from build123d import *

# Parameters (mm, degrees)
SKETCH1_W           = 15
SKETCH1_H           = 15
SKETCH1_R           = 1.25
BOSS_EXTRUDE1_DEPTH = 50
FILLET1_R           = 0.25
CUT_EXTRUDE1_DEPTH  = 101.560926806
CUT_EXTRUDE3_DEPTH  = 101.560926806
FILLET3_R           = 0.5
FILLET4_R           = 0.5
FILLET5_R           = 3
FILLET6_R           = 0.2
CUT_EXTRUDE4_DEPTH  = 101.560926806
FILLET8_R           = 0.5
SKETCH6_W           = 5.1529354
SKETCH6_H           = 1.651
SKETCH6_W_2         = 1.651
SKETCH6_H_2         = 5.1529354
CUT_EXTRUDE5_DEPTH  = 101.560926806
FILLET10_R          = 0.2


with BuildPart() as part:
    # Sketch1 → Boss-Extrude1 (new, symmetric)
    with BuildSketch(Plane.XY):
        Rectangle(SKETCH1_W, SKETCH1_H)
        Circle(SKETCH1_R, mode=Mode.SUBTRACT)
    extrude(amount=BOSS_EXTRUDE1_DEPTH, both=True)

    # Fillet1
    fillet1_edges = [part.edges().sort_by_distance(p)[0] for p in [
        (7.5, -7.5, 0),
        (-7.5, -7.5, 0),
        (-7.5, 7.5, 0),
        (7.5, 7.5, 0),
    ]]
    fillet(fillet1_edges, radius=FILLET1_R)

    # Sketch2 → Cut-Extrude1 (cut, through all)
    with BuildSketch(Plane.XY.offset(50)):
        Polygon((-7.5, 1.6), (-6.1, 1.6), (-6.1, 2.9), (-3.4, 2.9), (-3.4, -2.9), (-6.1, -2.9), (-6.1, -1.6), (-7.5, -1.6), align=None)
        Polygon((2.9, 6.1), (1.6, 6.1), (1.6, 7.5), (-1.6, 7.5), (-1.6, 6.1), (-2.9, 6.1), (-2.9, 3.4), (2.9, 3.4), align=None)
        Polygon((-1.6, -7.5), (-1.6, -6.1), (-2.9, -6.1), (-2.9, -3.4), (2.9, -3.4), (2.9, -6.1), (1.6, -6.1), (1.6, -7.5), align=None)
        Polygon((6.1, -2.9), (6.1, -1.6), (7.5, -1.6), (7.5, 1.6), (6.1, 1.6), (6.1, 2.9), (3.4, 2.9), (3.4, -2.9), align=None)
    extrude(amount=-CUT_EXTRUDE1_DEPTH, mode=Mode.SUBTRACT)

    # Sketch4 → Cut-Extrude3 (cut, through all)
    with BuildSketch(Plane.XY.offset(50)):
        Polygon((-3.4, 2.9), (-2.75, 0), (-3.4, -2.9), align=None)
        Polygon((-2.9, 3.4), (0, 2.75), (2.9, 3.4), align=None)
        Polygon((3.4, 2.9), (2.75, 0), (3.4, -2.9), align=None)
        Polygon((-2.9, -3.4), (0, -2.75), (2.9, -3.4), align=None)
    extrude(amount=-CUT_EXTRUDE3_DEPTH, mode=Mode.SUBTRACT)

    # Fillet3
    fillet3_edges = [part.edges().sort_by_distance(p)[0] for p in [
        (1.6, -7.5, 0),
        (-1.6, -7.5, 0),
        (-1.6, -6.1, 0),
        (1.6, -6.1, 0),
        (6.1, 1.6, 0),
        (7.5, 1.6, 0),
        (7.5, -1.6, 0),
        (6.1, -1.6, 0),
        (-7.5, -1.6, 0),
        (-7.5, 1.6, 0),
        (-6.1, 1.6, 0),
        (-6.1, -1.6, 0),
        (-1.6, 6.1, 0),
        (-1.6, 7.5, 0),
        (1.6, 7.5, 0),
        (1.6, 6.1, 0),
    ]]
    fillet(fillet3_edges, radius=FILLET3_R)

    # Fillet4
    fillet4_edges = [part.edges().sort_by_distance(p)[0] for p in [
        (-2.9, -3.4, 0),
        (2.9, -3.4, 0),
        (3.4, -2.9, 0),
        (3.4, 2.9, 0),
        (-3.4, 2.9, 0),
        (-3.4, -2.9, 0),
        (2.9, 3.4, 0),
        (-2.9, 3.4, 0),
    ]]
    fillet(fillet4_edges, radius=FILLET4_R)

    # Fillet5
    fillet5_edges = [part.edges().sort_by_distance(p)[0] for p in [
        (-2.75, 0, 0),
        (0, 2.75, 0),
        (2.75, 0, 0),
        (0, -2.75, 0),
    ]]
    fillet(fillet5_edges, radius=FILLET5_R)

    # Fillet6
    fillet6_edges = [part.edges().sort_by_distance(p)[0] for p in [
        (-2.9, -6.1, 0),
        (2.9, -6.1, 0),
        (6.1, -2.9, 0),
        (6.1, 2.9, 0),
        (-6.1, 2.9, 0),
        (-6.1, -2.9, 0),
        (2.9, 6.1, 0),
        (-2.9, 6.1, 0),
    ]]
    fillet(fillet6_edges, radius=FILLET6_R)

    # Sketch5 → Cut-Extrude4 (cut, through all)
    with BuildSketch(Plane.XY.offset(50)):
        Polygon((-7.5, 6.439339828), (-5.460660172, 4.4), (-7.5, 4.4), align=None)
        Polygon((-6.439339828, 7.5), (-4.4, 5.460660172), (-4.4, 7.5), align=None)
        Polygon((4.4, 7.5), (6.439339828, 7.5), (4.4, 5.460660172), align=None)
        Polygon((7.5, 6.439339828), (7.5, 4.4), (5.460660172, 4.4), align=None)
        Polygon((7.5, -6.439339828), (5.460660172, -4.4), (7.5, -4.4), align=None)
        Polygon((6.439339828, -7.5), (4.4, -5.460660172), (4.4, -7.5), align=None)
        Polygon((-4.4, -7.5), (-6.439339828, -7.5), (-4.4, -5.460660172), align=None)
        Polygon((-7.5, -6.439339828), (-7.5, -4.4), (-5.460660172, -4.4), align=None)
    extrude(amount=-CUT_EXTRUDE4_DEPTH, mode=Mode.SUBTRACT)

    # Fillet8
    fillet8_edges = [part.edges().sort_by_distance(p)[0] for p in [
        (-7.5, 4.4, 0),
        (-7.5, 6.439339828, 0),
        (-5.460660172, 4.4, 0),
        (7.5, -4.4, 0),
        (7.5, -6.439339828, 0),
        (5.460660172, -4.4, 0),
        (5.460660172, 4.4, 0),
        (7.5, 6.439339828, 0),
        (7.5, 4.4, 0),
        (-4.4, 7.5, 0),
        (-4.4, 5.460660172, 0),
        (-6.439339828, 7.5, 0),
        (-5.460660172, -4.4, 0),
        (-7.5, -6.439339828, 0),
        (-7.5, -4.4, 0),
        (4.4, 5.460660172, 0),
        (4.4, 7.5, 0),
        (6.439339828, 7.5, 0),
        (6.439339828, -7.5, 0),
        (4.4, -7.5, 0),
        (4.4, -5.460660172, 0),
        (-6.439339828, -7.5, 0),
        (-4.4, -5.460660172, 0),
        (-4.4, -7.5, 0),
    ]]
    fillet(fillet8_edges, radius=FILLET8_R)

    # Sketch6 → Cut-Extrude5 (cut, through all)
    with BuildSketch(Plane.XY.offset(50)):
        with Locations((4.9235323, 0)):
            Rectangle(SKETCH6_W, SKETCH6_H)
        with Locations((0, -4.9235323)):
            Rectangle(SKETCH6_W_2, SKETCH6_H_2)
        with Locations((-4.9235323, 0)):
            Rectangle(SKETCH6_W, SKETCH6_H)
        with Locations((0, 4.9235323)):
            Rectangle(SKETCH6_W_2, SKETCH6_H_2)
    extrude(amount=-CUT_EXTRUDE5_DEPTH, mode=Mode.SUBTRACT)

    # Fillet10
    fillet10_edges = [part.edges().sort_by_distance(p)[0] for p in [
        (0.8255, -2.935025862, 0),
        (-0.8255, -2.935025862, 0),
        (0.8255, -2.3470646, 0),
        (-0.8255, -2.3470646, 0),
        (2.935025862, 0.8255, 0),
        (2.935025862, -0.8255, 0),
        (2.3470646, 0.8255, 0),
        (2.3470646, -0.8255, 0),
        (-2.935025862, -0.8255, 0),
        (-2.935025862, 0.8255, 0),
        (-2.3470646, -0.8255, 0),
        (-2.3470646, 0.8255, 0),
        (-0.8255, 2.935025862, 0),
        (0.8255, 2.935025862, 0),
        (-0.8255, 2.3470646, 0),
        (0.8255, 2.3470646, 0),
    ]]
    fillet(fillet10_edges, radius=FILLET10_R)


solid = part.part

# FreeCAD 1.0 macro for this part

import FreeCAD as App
import Part
import Sketcher
from FreeCAD import Vector
Q = App.Units.Quantity


def edges_at(feature, points):
    """Names of the edges that pass closest to the given points."""
    edges = feature.Shape.Edges
    near = lambda p: min(range(len(edges)), key=lambda i: edges[i].distToShape(Part.Vertex(*p))[0])
    return sorted({f"Edge{near(p) + 1}" for p in points})

doc = App.newDocument("Part")
params = doc.addObject("Spreadsheet::Sheet", "Params")
for row, (alias, value) in enumerate([
    ("sketch1_diameter", "2.5 mm"),
    ("sketch1_width", "15 mm"),
    ("pad1_length", "100 mm"),
    ("fillet_radius", "0.25 mm"),
    ("sketch2_width", "1.4 mm"),
    ("sketch2_width2", "2.7 mm"),
    ("sketch2_width3", "1.3 mm"),
    ("sketch2_width4", "3.2 mm"),
    ("sketch3_width", "5.8 mm"),
    ("fillet2_radius", "0.5 mm"),
    ("fillet3_radius", "0.5 mm"),
    ("fillet4_radius", "3 mm"),
    ("fillet5_radius", "0.2 mm"),
    ("fillet6_radius", "0.5 mm"),
    ("fillet7_radius", "0.2 mm"),
], start=1):
    params.set(f"A{row}", alias)
    params.set(f"B{row}", "=" + value)
    params.setAlias(f"B{row}", alias)

body = doc.addObject("PartDesign::Body", "Body")

# Sketch on XY plane
sketch1 = body.newObject("Sketcher::SketchObject", "Sketch")
sketch1.AttachmentSupport = (doc.getObject("XY_Plane"), [""])
sketch1.MapMode = "FlatFace"
sketch1.addGeometry(Part.LineSegment(Vector(-7.5, 7.5, 0), Vector(-7.5, -7.5, 0)), False)
sketch1.addGeometry(Part.LineSegment(Vector(-7.5, -7.5, 0), Vector(7.5, -7.5, 0)), False)
sketch1.addGeometry(Part.LineSegment(Vector(7.5, -7.5, 0), Vector(7.5, 7.5, 0)), False)
sketch1.addGeometry(Part.LineSegment(Vector(7.5, 7.5, 0), Vector(-7.5, 7.5, 0)), False)
sketch1.addGeometry(Part.Circle(Vector(0, 0, 0), Vector(0, 0, 1), 1.2), False)
sketch1.addConstraint(Sketcher.Constraint("Coincident", 0, 2, 1, 1))
sketch1.addConstraint(Sketcher.Constraint("Coincident", 1, 2, 2, 1))
sketch1.addConstraint(Sketcher.Constraint("Coincident", 2, 2, 3, 1))
sketch1.addConstraint(Sketcher.Constraint("Coincident", 3, 2, 0, 1))
sketch1.addConstraint(Sketcher.Constraint("Vertical", 0))
sketch1.addConstraint(Sketcher.Constraint("Horizontal", 1))
sketch1.addConstraint(Sketcher.Constraint("Vertical", 2))
sketch1.addConstraint(Sketcher.Constraint("Horizontal", 3))
sketch1.addConstraint(Sketcher.Constraint("Coincident", 4, 3, -1, 1))
sketch1.addConstraint(Sketcher.Constraint("Symmetric", 0, 2, 2, 2, -1, 1))
sketch1.addConstraint(Sketcher.Constraint("Equal", 3, 0))
sketch1.addConstraint(Sketcher.Constraint("Diameter", 4, Q("2.5 mm")))
sketch1.addConstraint(Sketcher.Constraint("DistanceX", 1, 1, 1, 2, Q("15 mm")))
sketch1.setExpression("Constraints[11]", "Params.sketch1_diameter")
sketch1.setExpression("Constraints[12]", "Params.sketch1_width")
pad1 = body.newObject("PartDesign::Pad", "Pad")
pad1.Profile = sketch1
pad1.setExpression("Length", "Params.pad1_length")
pad1.Midplane = True
doc.recompute()

fillet = body.newObject("PartDesign::Fillet", "Fillet")
fillet.Base = (pad1, edges_at(pad1, [
    (7.5, -7.5, 0),
    (-7.5, -7.5, 0),
    (-7.5, 7.5, 0),
    (7.5, 7.5, 0),
]))
fillet.setExpression("Radius", "Params.fillet_radius")

# Sketch on XY plane
sketch2 = body.newObject("Sketcher::SketchObject", "Sketch001")
sketch2.AttachmentSupport = (doc.getObject("XY_Plane"), [""])
sketch2.MapMode = "FlatFace"
sketch2.AttachmentOffset = App.Placement(Vector(0, 0, 50), App.Rotation())
sketch2.addGeometry(Part.LineSegment(Vector(-6.1, 1.6, 0), Vector(-7.5, 1.6, 0)), False)
sketch2.addGeometry(Part.LineSegment(Vector(-7.5, 1.6, 0), Vector(-7.5, -1.6, 0)), False)
sketch2.addGeometry(Part.LineSegment(Vector(-7.5, -1.6, 0), Vector(-6.1, -1.6, 0)), False)
sketch2.addGeometry(Part.LineSegment(Vector(-6.1, -1.6, 0), Vector(-6.1, -2.9, 0)), False)
sketch2.addGeometry(Part.LineSegment(Vector(-6.1, -2.9, 0), Vector(-3.4, -2.9, 0)), False)
sketch2.addGeometry(Part.LineSegment(Vector(-3.4, -2.9, 0), Vector(-3.4, 2.9, 0)), False)
sketch2.addGeometry(Part.LineSegment(Vector(-3.4, 2.9, 0), Vector(-6.1, 2.9, 0)), False)
sketch2.addGeometry(Part.LineSegment(Vector(-6.1, 2.9, 0), Vector(-6.1, 1.6, 0)), False)
sketch2.addGeometry(Part.LineSegment(Vector(2.9, 6.1, 0), Vector(1.6, 6.1, 0)), False)
sketch2.addGeometry(Part.LineSegment(Vector(1.6, 6.1, 0), Vector(1.6, 7.5, 0)), False)
sketch2.addGeometry(Part.LineSegment(Vector(1.6, 7.5, 0), Vector(-1.6, 7.5, 0)), False)
sketch2.addGeometry(Part.LineSegment(Vector(-1.6, 7.5, 0), Vector(-1.6, 6.1, 0)), False)
sketch2.addGeometry(Part.LineSegment(Vector(-1.6, 6.1, 0), Vector(-2.9, 6.1, 0)), False)
sketch2.addGeometry(Part.LineSegment(Vector(-2.9, 6.1, 0), Vector(-2.9, 3.4, 0)), False)
sketch2.addGeometry(Part.LineSegment(Vector(-2.9, 3.4, 0), Vector(2.9, 3.4, 0)), False)
sketch2.addGeometry(Part.LineSegment(Vector(2.9, 3.4, 0), Vector(2.9, 6.1, 0)), False)
sketch2.addGeometry(Part.LineSegment(Vector(-1.6, -6.1, 0), Vector(-1.6, -7.5, 0)), False)
sketch2.addGeometry(Part.LineSegment(Vector(-1.6, -7.5, 0), Vector(1.6, -7.5, 0)), False)
sketch2.addGeometry(Part.LineSegment(Vector(1.6, -7.5, 0), Vector(1.6, -6.1, 0)), False)
sketch2.addGeometry(Part.LineSegment(Vector(1.6, -6.1, 0), Vector(2.9, -6.1, 0)), False)
sketch2.addGeometry(Part.LineSegment(Vector(2.9, -6.1, 0), Vector(2.9, -3.4, 0)), False)
sketch2.addGeometry(Part.LineSegment(Vector(2.9, -3.4, 0), Vector(-2.9, -3.4, 0)), False)
sketch2.addGeometry(Part.LineSegment(Vector(-2.9, -3.4, 0), Vector(-2.9, -6.1, 0)), False)
sketch2.addGeometry(Part.LineSegment(Vector(-2.9, -6.1, 0), Vector(-1.6, -6.1, 0)), False)
sketch2.addGeometry(Part.LineSegment(Vector(6.1, -2.9, 0), Vector(6.1, -1.6, 0)), False)
sketch2.addGeometry(Part.LineSegment(Vector(6.1, -1.6, 0), Vector(7.5, -1.6, 0)), False)
sketch2.addGeometry(Part.LineSegment(Vector(7.5, -1.6, 0), Vector(7.5, 1.6, 0)), False)
sketch2.addGeometry(Part.LineSegment(Vector(7.5, 1.6, 0), Vector(6.1, 1.6, 0)), False)
sketch2.addGeometry(Part.LineSegment(Vector(6.1, 1.6, 0), Vector(6.1, 2.9, 0)), False)
sketch2.addGeometry(Part.LineSegment(Vector(6.1, 2.9, 0), Vector(3.4, 2.9, 0)), False)
sketch2.addGeometry(Part.LineSegment(Vector(3.4, 2.9, 0), Vector(3.4, -2.9, 0)), False)
sketch2.addGeometry(Part.LineSegment(Vector(3.4, -2.9, 0), Vector(6.1, -2.9, 0)), False)
sketch2.addConstraint(Sketcher.Constraint("Coincident", 0, 2, 1, 1))
sketch2.addConstraint(Sketcher.Constraint("Coincident", 1, 2, 2, 1))
sketch2.addConstraint(Sketcher.Constraint("Coincident", 2, 2, 3, 1))
sketch2.addConstraint(Sketcher.Constraint("Coincident", 3, 2, 4, 1))
sketch2.addConstraint(Sketcher.Constraint("Coincident", 4, 2, 5, 1))
sketch2.addConstraint(Sketcher.Constraint("Coincident", 5, 2, 6, 1))
sketch2.addConstraint(Sketcher.Constraint("Coincident", 6, 2, 7, 1))
sketch2.addConstraint(Sketcher.Constraint("Coincident", 7, 2, 0, 1))
sketch2.addConstraint(Sketcher.Constraint("Coincident", 8, 2, 9, 1))
sketch2.addConstraint(Sketcher.Constraint("Coincident", 9, 2, 10, 1))
sketch2.addConstraint(Sketcher.Constraint("Coincident", 10, 2, 11, 1))
sketch2.addConstraint(Sketcher.Constraint("Coincident", 11, 2, 12, 1))
sketch2.addConstraint(Sketcher.Constraint("Coincident", 12, 2, 13, 1))
sketch2.addConstraint(Sketcher.Constraint("Coincident", 13, 2, 14, 1))
sketch2.addConstraint(Sketcher.Constraint("Coincident", 14, 2, 15, 1))
sketch2.addConstraint(Sketcher.Constraint("Coincident", 15, 2, 8, 1))
sketch2.addConstraint(Sketcher.Constraint("Coincident", 16, 2, 17, 1))
sketch2.addConstraint(Sketcher.Constraint("Coincident", 17, 2, 18, 1))
sketch2.addConstraint(Sketcher.Constraint("Coincident", 18, 2, 19, 1))
sketch2.addConstraint(Sketcher.Constraint("Coincident", 19, 2, 20, 1))
sketch2.addConstraint(Sketcher.Constraint("Coincident", 20, 2, 21, 1))
sketch2.addConstraint(Sketcher.Constraint("Coincident", 21, 2, 22, 1))
sketch2.addConstraint(Sketcher.Constraint("Coincident", 22, 2, 23, 1))
sketch2.addConstraint(Sketcher.Constraint("Coincident", 23, 2, 16, 1))
sketch2.addConstraint(Sketcher.Constraint("Coincident", 24, 2, 25, 1))
sketch2.addConstraint(Sketcher.Constraint("Coincident", 25, 2, 26, 1))
sketch2.addConstraint(Sketcher.Constraint("Coincident", 26, 2, 27, 1))
sketch2.addConstraint(Sketcher.Constraint("Coincident", 27, 2, 28, 1))
sketch2.addConstraint(Sketcher.Constraint("Coincident", 28, 2, 29, 1))
sketch2.addConstraint(Sketcher.Constraint("Coincident", 29, 2, 30, 1))
sketch2.addConstraint(Sketcher.Constraint("Coincident", 30, 2, 31, 1))
sketch2.addConstraint(Sketcher.Constraint("Coincident", 31, 2, 24, 1))
sketch2.addConstraint(Sketcher.Constraint("Horizontal", 0))
sketch2.addConstraint(Sketcher.Constraint("Vertical", 1))
sketch2.addConstraint(Sketcher.Constraint("Horizontal", 2))
sketch2.addConstraint(Sketcher.Constraint("Vertical", 3))
sketch2.addConstraint(Sketcher.Constraint("Horizontal", 4))
sketch2.addConstraint(Sketcher.Constraint("Vertical", 5))
sketch2.addConstraint(Sketcher.Constraint("Horizontal", 6))
sketch2.addConstraint(Sketcher.Constraint("Vertical", 7))
sketch2.addConstraint(Sketcher.Constraint("Horizontal", 8))
sketch2.addConstraint(Sketcher.Constraint("Vertical", 9))
sketch2.addConstraint(Sketcher.Constraint("Horizontal", 10))
sketch2.addConstraint(Sketcher.Constraint("Vertical", 11))
sketch2.addConstraint(Sketcher.Constraint("Horizontal", 12))
sketch2.addConstraint(Sketcher.Constraint("Vertical", 13))
sketch2.addConstraint(Sketcher.Constraint("Horizontal", 14))
sketch2.addConstraint(Sketcher.Constraint("Vertical", 15))
sketch2.addConstraint(Sketcher.Constraint("Vertical", 16))
sketch2.addConstraint(Sketcher.Constraint("Horizontal", 17))
sketch2.addConstraint(Sketcher.Constraint("Vertical", 18))
sketch2.addConstraint(Sketcher.Constraint("Horizontal", 19))
sketch2.addConstraint(Sketcher.Constraint("Vertical", 20))
sketch2.addConstraint(Sketcher.Constraint("Horizontal", 21))
sketch2.addConstraint(Sketcher.Constraint("Vertical", 22))
sketch2.addConstraint(Sketcher.Constraint("Horizontal", 23))
sketch2.addConstraint(Sketcher.Constraint("Vertical", 24))
sketch2.addConstraint(Sketcher.Constraint("Horizontal", 25))
sketch2.addConstraint(Sketcher.Constraint("Vertical", 26))
sketch2.addConstraint(Sketcher.Constraint("Horizontal", 27))
sketch2.addConstraint(Sketcher.Constraint("Vertical", 28))
sketch2.addConstraint(Sketcher.Constraint("Horizontal", 29))
sketch2.addConstraint(Sketcher.Constraint("Vertical", 30))
sketch2.addConstraint(Sketcher.Constraint("Horizontal", 31))
sketch2.addConstraint(Sketcher.Constraint("Symmetric", 9, 2, 16, 2, -1, 1))
sketch2.addConstraint(Sketcher.Constraint("Symmetric", 11, 2, 18, 2, -1, 1))
sketch2.addConstraint(Sketcher.Constraint("Symmetric", 13, 2, 20, 2, -1, 1))
sketch2.addConstraint(Sketcher.Constraint("Symmetric", 15, 2, 22, 2, -1, 1))
sketch2.addConstraint(Sketcher.Constraint("Symmetric", 7, 2, 24, 2, -1, 1))
sketch2.addConstraint(Sketcher.Constraint("Symmetric", 1, 2, 26, 2, -1, 1))
sketch2.addConstraint(Sketcher.Constraint("Symmetric", 3, 2, 28, 2, -1, 1))
sketch2.addConstraint(Sketcher.Constraint("Symmetric", 5, 2, 30, 2, -1, 1))
sketch2.addConstraint(Sketcher.Constraint("Symmetric", 8, 2, 11, 2, -2))
sketch2.addConstraint(Sketcher.Constraint("Symmetric", 2, 2, 24, 2, -2))
sketch2.addConstraint(Sketcher.Constraint("Horizontal", 6, 2, 28, 2))
sketch2.addConstraint(Sketcher.Constraint("Vertical", 15, 2, 19, 2))
sketch2.addConstraint(Sketcher.Constraint("Equal", 17, 1))
sketch2.addConstraint(Sketcher.Constraint("Equal", 23, 3))
sketch2.addConstraint(Sketcher.Constraint("Equal", 27, 9))
sketch2.addConstraint(Sketcher.Constraint("Equal", 31, 13))
sketch2.addConstraint(Sketcher.Constraint("DistanceX", 0, 2, 0, 1, Q("1.4 mm")))
sketch2.addConstraint(Sketcher.Constraint("DistanceX", 4, 1, 4, 2, Q("2.7 mm")))
sketch2.addConstraint(Sketcher.Constraint("DistanceX", 8, 2, 8, 1, Q("1.3 mm")))
sketch2.addConstraint(Sketcher.Constraint("DistanceX", 10, 2, 10, 1, Q("3.2 mm")))
sketch2.addConstraint(Sketcher.Constraint("DistanceX", 5, 2, 8, 2, Q("5 mm")))
sketch2.addConstraint(Sketcher.Constraint("DistanceY", 4, 2, 8, 2, Q("9 mm")))
sketch2.setExpression("Constraints[80]", "Params.sketch2_width")
sketch2.setExpression("Constraints[81]", "Params.sketch2_width2")
sketch2.setExpression("Constraints[82]", "Params.sketch2_width3")
sketch2.setExpression("Constraints[83]", "Params.sketch2_width4")
pocket1 = body.newObject("PartDesign::Pocket", "Pocket")
pocket1.Profile = sketch2
pocket1.Type = "ThroughAll"

# Sketch on XY plane
sketch3 = body.newObject("Sketcher::SketchObject", "Sketch002")
sketch3.AttachmentSupport = (doc.getObject("XY_Plane"), [""])
sketch3.MapMode = "FlatFace"
sketch3.AttachmentOffset = App.Placement(Vector(0, 0, 50), App.Rotation())
sketch3.addGeometry(Part.LineSegment(Vector(-2.8, 0, 0), Vector(-3.4, 2.9, 0)), False)
sketch3.addGeometry(Part.LineSegment(Vector(-3.4, 2.9, 0), Vector(-3.4, -2.9, 0)), False)
sketch3.addGeometry(Part.LineSegment(Vector(-3.4, -2.9, 0), Vector(-2.8, 0, 0)), False)
sketch3.addGeometry(Part.LineSegment(Vector(-2.9, 3.4, 0), Vector(0, 2.8, 0)), False)
sketch3.addGeometry(Part.LineSegment(Vector(0, 2.8, 0), Vector(2.9, 3.4, 0)), False)
sketch3.addGeometry(Part.LineSegment(Vector(2.9, 3.4, 0), Vector(-2.9, 3.4, 0)), False)
sketch3.addGeometry(Part.LineSegment(Vector(3.4, 2.9, 0), Vector(2.8, 0, 0)), False)
sketch3.addGeometry(Part.LineSegment(Vector(2.8, 0, 0), Vector(3.4, -2.9, 0)), False)
sketch3.addGeometry(Part.LineSegment(Vector(3.4, -2.9, 0), Vector(3.4, 2.9, 0)), False)
sketch3.addGeometry(Part.LineSegment(Vector(0, -2.8, 0), Vector(-2.9, -3.4, 0)), False)
sketch3.addGeometry(Part.LineSegment(Vector(-2.9, -3.4, 0), Vector(2.9, -3.4, 0)), False)
sketch3.addGeometry(Part.LineSegment(Vector(2.9, -3.4, 0), Vector(0, -2.8, 0)), False)
sketch3.addConstraint(Sketcher.Constraint("Coincident", 0, 2, 1, 1))
sketch3.addConstraint(Sketcher.Constraint("Coincident", 1, 2, 2, 1))
sketch3.addConstraint(Sketcher.Constraint("Coincident", 2, 2, 0, 1))
sketch3.addConstraint(Sketcher.Constraint("Coincident", 3, 2, 4, 1))
sketch3.addConstraint(Sketcher.Constraint("Coincident", 4, 2, 5, 1))
sketch3.addConstraint(Sketcher.Constraint("Coincident", 5, 2, 3, 1))
sketch3.addConstraint(Sketcher.Constraint("Coincident", 6, 2, 7, 1))
sketch3.addConstraint(Sketcher.Constraint("Coincident", 7, 2, 8, 1))
sketch3.addConstraint(Sketcher.Constraint("Coincident", 8, 2, 6, 1))
sketch3.addConstraint(Sketcher.Constraint("Coincident", 9, 2, 10, 1))
sketch3.addConstraint(Sketcher.Constraint("Coincident", 10, 2, 11, 1))
sketch3.addConstraint(Sketcher.Constraint("Coincident", 11, 2, 9, 1))
sketch3.addConstraint(Sketcher.Constraint("Vertical", 1))
sketch3.addConstraint(Sketcher.Constraint("Horizontal", 5))
sketch3.addConstraint(Sketcher.Constraint("Vertical", 8))
sketch3.addConstraint(Sketcher.Constraint("Horizontal", 10))
sketch3.addConstraint(Sketcher.Constraint("Symmetric", 2, 2, 6, 2, -1, 1))
sketch3.addConstraint(Sketcher.Constraint("Symmetric", 0, 2, 7, 2, -1, 1))
sketch3.addConstraint(Sketcher.Constraint("Symmetric", 4, 2, 9, 2, -1, 1))
sketch3.addConstraint(Sketcher.Constraint("Symmetric", 3, 2, 11, 2, -1, 1))
sketch3.addConstraint(Sketcher.Constraint("PointOnObject", 2, 2, -1))
sketch3.addConstraint(Sketcher.Constraint("PointOnObject", 3, 2, -2))
sketch3.addConstraint(Sketcher.Constraint("Perpendicular", 2, 3))
sketch3.addConstraint(Sketcher.Constraint("Perpendicular", 0, 4))
sketch3.addConstraint(Sketcher.Constraint("Perpendicular", 3, 6))
sketch3.addConstraint(Sketcher.Constraint("Perpendicular", 6, 11))
sketch3.addConstraint(Sketcher.Constraint("Horizontal", 1, 2, 7, 2))
sketch3.addConstraint(Sketcher.Constraint("Equal", 10, 1))
sketch3.addConstraint(Sketcher.Constraint("DistanceX", 5, 2, 5, 1, Q("5.8 mm")))
sketch3.addConstraint(Sketcher.Constraint("DistanceX", 0, 2, -1, 1, Q("3.4 mm")))
sketch3.addConstraint(Sketcher.Constraint("DistanceY", -1, 1, 4, 2, Q("3.4 mm")))
sketch3.addConstraint(Sketcher.Constraint("DistanceX", 2, 2, 6, 2, Q("5.5 mm")))
sketch3.setExpression("Constraints[28]", "Params.sketch3_width")
pocket2 = body.newObject("PartDesign::Pocket", "Pocket001")
pocket2.Profile = sketch3
pocket2.Type = "ThroughAll"
doc.recompute()

fillet2 = body.newObject("PartDesign::Fillet", "Fillet001")
fillet2.Base = (pocket2, edges_at(pocket2, [
    (1.6, -7.5, 0),
    (-1.6, -7.5, 0),
    (-1.6, -6.1, 0),
    (1.6, -6.1, 0),
    (6.1, 1.6, 0),
    (7.5, 1.6, 0),
    (7.5, -1.6, 0),
    (6.1, -1.6, 0),
    (-7.5, -1.6, 0),
    (-7.5, 1.6, 0),
    (-6.1, 1.6, 0),
    (-6.1, -1.6, 0),
    (-1.6, 6.1, 0),
    (-1.6, 7.5, 0),
    (1.6, 7.5, 0),
    (1.6, 6.1, 0),
]))
fillet2.setExpression("Radius", "Params.fillet2_radius")
doc.recompute()

fillet3 = body.newObject("PartDesign::Fillet", "Fillet002")
fillet3.Base = (fillet2, edges_at(fillet2, [
    (-2.9, -3.4, 0),
    (2.9, -3.4, 0),
    (3.4, -2.9, 0),
    (3.4, 2.9, 0),
    (-3.4, 2.9, 0),
    (-3.4, -2.9, 0),
    (2.9, 3.4, 0),
    (-2.9, 3.4, 0),
]))
fillet3.setExpression("Radius", "Params.fillet3_radius")
doc.recompute()

fillet4 = body.newObject("PartDesign::Fillet", "Fillet003")
fillet4.Base = (fillet3, edges_at(fillet3, [
    (-2.75, 0, 0),
    (0, 2.75, 0),
    (2.75, 0, 0),
    (0, -2.75, 0),
]))
fillet4.setExpression("Radius", "Params.fillet4_radius")
doc.recompute()

fillet5 = body.newObject("PartDesign::Fillet", "Fillet004")
fillet5.Base = (fillet4, edges_at(fillet4, [
    (-2.9, -6.1, 0),
    (2.9, -6.1, 0),
    (6.1, -2.9, 0),
    (6.1, 2.9, 0),
    (-6.1, 2.9, 0),
    (-6.1, -2.9, 0),
    (2.9, 6.1, 0),
    (-2.9, 6.1, 0),
]))
fillet5.setExpression("Radius", "Params.fillet5_radius")

# Sketch on XY plane
sketch4 = body.newObject("Sketcher::SketchObject", "Sketch003")
sketch4.AttachmentSupport = (doc.getObject("XY_Plane"), [""])
sketch4.MapMode = "FlatFace"
sketch4.AttachmentOffset = App.Placement(Vector(0, 0, 50), App.Rotation())
sketch4.addGeometry(Part.LineSegment(Vector(-5.5, 4.4, 0), Vector(-7.5, 6.4, 0)), False)
sketch4.addGeometry(Part.LineSegment(Vector(-7.5, 6.4, 0), Vector(-7.5, 4.4, 0)), False)
sketch4.addGeometry(Part.LineSegment(Vector(-7.5, 4.4, 0), Vector(-5.5, 4.4, 0)), False)
sketch4.addGeometry(Part.LineSegment(Vector(-6.4, 7.5, 0), Vector(-4.4, 5.5, 0)), False)
sketch4.addGeometry(Part.LineSegment(Vector(-4.4, 5.5, 0), Vector(-4.4, 7.5, 0)), False)
sketch4.addGeometry(Part.LineSegment(Vector(-4.4, 7.5, 0), Vector(-6.4, 7.5, 0)), False)
sketch4.addGeometry(Part.LineSegment(Vector(6.4, 7.5, 0), Vector(4.4, 7.5, 0)), False)
sketch4.addGeometry(Part.LineSegment(Vector(4.4, 7.5, 0), Vector(4.4, 5.5, 0)), False)
sketch4.addGeometry(Part.LineSegment(Vector(4.4, 5.5, 0), Vector(6.4, 7.5, 0)), False)
sketch4.addGeometry(Part.LineSegment(Vector(7.5, 4.4, 0), Vector(7.5, 6.4, 0)), False)
sketch4.addGeometry(Part.LineSegment(Vector(7.5, 6.4, 0), Vector(5.5, 4.4, 0)), False)
sketch4.addGeometry(Part.LineSegment(Vector(5.5, 4.4, 0), Vector(7.5, 4.4, 0)), False)
sketch4.addGeometry(Part.LineSegment(Vector(5.5, -4.4, 0), Vector(7.5, -6.4, 0)), False)
sketch4.addGeometry(Part.LineSegment(Vector(7.5, -6.4, 0), Vector(7.5, -4.4, 0)), False)
sketch4.addGeometry(Part.LineSegment(Vector(7.5, -4.4, 0), Vector(5.5, -4.4, 0)), False)
sketch4.addGeometry(Part.LineSegment(Vector(6.4, -7.5, 0), Vector(4.4, -5.5, 0)), False)
sketch4.addGeometry(Part.LineSegment(Vector(4.4, -5.5, 0), Vector(4.4, -7.5, 0)), False)
sketch4.addGeometry(Part.LineSegment(Vector(4.4, -7.5, 0), Vector(6.4, -7.5, 0)), False)
sketch4.addGeometry(Part.LineSegment(Vector(-6.4, -7.5, 0), Vector(-4.4, -7.5, 0)), False)
sketch4.addGeometry(Part.LineSegment(Vector(-4.4, -7.5, 0), Vector(-4.4, -5.5, 0)), False)
sketch4.addGeometry(Part.LineSegment(Vector(-4.4, -5.5, 0), Vector(-6.4, -7.5, 0)), False)
sketch4.addGeometry(Part.LineSegment(Vector(-7.5, -4.4, 0), Vector(-7.5, -6.4, 0)), False)
sketch4.addGeometry(Part.LineSegment(Vector(-7.5, -6.4, 0), Vector(-5.5, -4.4, 0)), False)
sketch4.addGeometry(Part.LineSegment(Vector(-5.5, -4.4, 0), Vector(-7.5, -4.4, 0)), False)
sketch4.addConstraint(Sketcher.Constraint("Coincident", 0, 2, 1, 1))
sketch4.addConstraint(Sketcher.Constraint("Coincident", 1, 2, 2, 1))
sketch4.addConstraint(Sketcher.Constraint("Coincident", 2, 2, 0, 1))
sketch4.addConstraint(Sketcher.Constraint("Coincident", 3, 2, 4, 1))
sketch4.addConstraint(Sketcher.Constraint("Coincident", 4, 2, 5, 1))
sketch4.addConstraint(Sketcher.Constraint("Coincident", 5, 2, 3, 1))
sketch4.addConstraint(Sketcher.Constraint("Coincident", 6, 2, 7, 1))
sketch4.addConstraint(Sketcher.Constraint("Coincident", 7, 2, 8, 1))
sketch4.addConstraint(Sketcher.Constraint("Coincident", 8, 2, 6, 1))
sketch4.addConstraint(Sketcher.Constraint("Coincident", 9, 2, 10, 1))
sketch4.addConstraint(Sketcher.Constraint("Coincident", 10, 2, 11, 1))
sketch4.addConstraint(Sketcher.Constraint("Coincident", 11, 2, 9, 1))
sketch4.addConstraint(Sketcher.Constraint("Coincident", 12, 2, 13, 1))
sketch4.addConstraint(Sketcher.Constraint("Coincident", 13, 2, 14, 1))
sketch4.addConstraint(Sketcher.Constraint("Coincident", 14, 2, 12, 1))
sketch4.addConstraint(Sketcher.Constraint("Coincident", 15, 2, 16, 1))
sketch4.addConstraint(Sketcher.Constraint("Coincident", 16, 2, 17, 1))
sketch4.addConstraint(Sketcher.Constraint("Coincident", 17, 2, 15, 1))
sketch4.addConstraint(Sketcher.Constraint("Coincident", 18, 2, 19, 1))
sketch4.addConstraint(Sketcher.Constraint("Coincident", 19, 2, 20, 1))
sketch4.addConstraint(Sketcher.Constraint("Coincident", 20, 2, 18, 1))
sketch4.addConstraint(Sketcher.Constraint("Coincident", 21, 2, 22, 1))
sketch4.addConstraint(Sketcher.Constraint("Coincident", 22, 2, 23, 1))
sketch4.addConstraint(Sketcher.Constraint("Coincident", 23, 2, 21, 1))
sketch4.addConstraint(Sketcher.Constraint("Vertical", 1))
sketch4.addConstraint(Sketcher.Constraint("Horizontal", 2))
sketch4.addConstraint(Sketcher.Constraint("Vertical", 4))
sketch4.addConstraint(Sketcher.Constraint("Horizontal", 5))
sketch4.addConstraint(Sketcher.Constraint("Horizontal", 6))
sketch4.addConstraint(Sketcher.Constraint("Vertical", 7))
sketch4.addConstraint(Sketcher.Constraint("Vertical", 9))
sketch4.addConstraint(Sketcher.Constraint("Horizontal", 11))
sketch4.addConstraint(Sketcher.Constraint("Vertical", 13))
sketch4.addConstraint(Sketcher.Constraint("Horizontal", 14))
sketch4.addConstraint(Sketcher.Constraint("Vertical", 16))
sketch4.addConstraint(Sketcher.Constraint("Horizontal", 17))
sketch4.addConstraint(Sketcher.Constraint("Horizontal", 18))
sketch4.addConstraint(Sketcher.Constraint("Vertical", 19))
sketch4.addConstraint(Sketcher.Constraint("Vertical", 21))
sketch4.addConstraint(Sketcher.Constraint("Horizontal", 23))
sketch4.addConstraint(Sketcher.Constraint("Symmetric", 0, 2, 12, 2, -1, 1))
sketch4.addConstraint(Sketcher.Constraint("Symmetric", 2, 2, 14, 2, -1, 1))
sketch4.addConstraint(Sketcher.Constraint("Symmetric", 3, 2, 15, 2, -1, 1))
sketch4.addConstraint(Sketcher.Constraint("Symmetric", 5, 2, 17, 2, -1, 1))
sketch4.addConstraint(Sketcher.Constraint("Symmetric", 6, 2, 18, 2, -1, 1))
sketch4.addConstraint(Sketcher.Constraint("Symmetric", 9, 2, 21, 2, -1, 1))
sketch4.addConstraint(Sketcher.Constraint("Symmetric", 10, 2, 22, 2, -1, 1))
sketch4.addConstraint(Sketcher.Constraint("Symmetric", 4, 2, 6, 2, -2))
sketch4.addConstraint(Sketcher.Constraint("Symmetric", 0, 2, 9, 2, -2))
sketch4.addConstraint(Sketcher.Constraint("Symmetric", 2, 2, 10, 2, -2))
sketch4.addConstraint(Sketcher.Constraint("Parallel", 0, 3))
sketch4.addConstraint(Sketcher.Constraint("Perpendicular", 3, 8))
sketch4.addConstraint(Sketcher.Constraint("Parallel", 8, 10))
sketch4.addConstraint(Sketcher.Constraint("Perpendicular", 15, 20))
sketch4.addConstraint(Sketcher.Constraint("Horizontal", 3, 2, 7, 2))
sketch4.addConstraint(Sketcher.Constraint("Horizontal", 15, 2, 19, 2))
sketch4.addConstraint(Sketcher.Constraint("Equal", 2, 5))
sketch4.addConstraint(Sketcher.Constraint("DistanceX", 0, 2, -1, 1, Q("7.5 mm")))
sketch4.addConstraint(Sketcher.Constraint("DistanceY", -1, 1, 1, 2, Q("4.4 mm")))
sketch4.addConstraint(Sketcher.Constraint("DistanceX", 3, 2, -1, 1, Q("4.4 mm")))
sketch4.addConstraint(Sketcher.Constraint("DistanceY", -1, 1, 4, 2, Q("7.5 mm")))
sketch4.addConstraint(Sketcher.Constraint("DistanceX", 2, 1, 2, 2, Q("2.03934 mm")))
pocket3 = body.newObject("PartDesign::Pocket", "Pocket002")
pocket3.Profile = sketch4
pocket3.Type = "ThroughAll"
doc.recompute()

fillet6 = body.newObject("PartDesign::Fillet", "Fillet005")
fillet6.Base = (pocket3, edges_at(pocket3, [
    (-7.5, 4.4, 0),
    (-7.5, 6.439, 0),
    (-5.461, 4.4, 0),
    (7.5, -4.4, 0),
    (7.5, -6.439, 0),
    (5.461, -4.4, 0),
    (5.461, 4.4, 0),
    (7.5, 6.439, 0),
    (7.5, 4.4, 0),
    (-4.4, 7.5, 0),
    (-4.4, 5.461, 0),
    (-6.439, 7.5, 0),
    (-5.461, -4.4, 0),
    (-7.5, -6.439, 0),
    (-7.5, -4.4, 0),
    (4.4, 5.461, 0),
    (4.4, 7.5, 0),
    (6.439, 7.5, 0),
    (6.439, -7.5, 0),
    (4.4, -7.5, 0),
    (4.4, -5.461, 0),
    (-6.439, -7.5, 0),
    (-4.4, -5.461, 0),
    (-4.4, -7.5, 0),
]))
fillet6.setExpression("Radius", "Params.fillet6_radius")

# Sketch on XY plane
sketch5 = body.newObject("Sketcher::SketchObject", "Sketch004")
sketch5.AttachmentSupport = (doc.getObject("XY_Plane"), [""])
sketch5.MapMode = "FlatFace"
sketch5.AttachmentOffset = App.Placement(Vector(0, 0, 50), App.Rotation())
sketch5.addGeometry(Part.LineSegment(Vector(2.3, 0.8, 0), Vector(2.3, -0.8, 0)), False)
sketch5.addGeometry(Part.LineSegment(Vector(2.3, -0.8, 0), Vector(7.5, -0.8, 0)), False)
sketch5.addGeometry(Part.LineSegment(Vector(7.5, -0.8, 0), Vector(7.5, 0.8, 0)), False)
sketch5.addGeometry(Part.LineSegment(Vector(7.5, 0.8, 0), Vector(2.3, 0.8, 0)), False)
sketch5.addGeometry(Part.LineSegment(Vector(-0.8, -2.3, 0), Vector(-0.8, -7.5, 0)), False)
sketch5.addGeometry(Part.LineSegment(Vector(-0.8, -7.5, 0), Vector(0.8, -7.5, 0)), False)
sketch5.addGeometry(Part.LineSegment(Vector(0.8, -7.5, 0), Vector(0.8, -2.3, 0)), False)
sketch5.addGeometry(Part.LineSegment(Vector(0.8, -2.3, 0), Vector(-0.8, -2.3, 0)), False)
sketch5.addGeometry(Part.LineSegment(Vector(-7.5, 0.8, 0), Vector(-7.5, -0.8, 0)), False)
sketch5.addGeometry(Part.LineSegment(Vector(-7.5, -0.8, 0), Vector(-2.3, -0.8, 0)), False)
sketch5.addGeometry(Part.LineSegment(Vector(-2.3, -0.8, 0), Vector(-2.3, 0.8, 0)), False)
sketch5.addGeometry(Part.LineSegment(Vector(-2.3, 0.8, 0), Vector(-7.5, 0.8, 0)), False)
sketch5.addGeometry(Part.LineSegment(Vector(-0.8, 7.5, 0), Vector(-0.8, 2.3, 0)), False)
sketch5.addGeometry(Part.LineSegment(Vector(-0.8, 2.3, 0), Vector(0.8, 2.3, 0)), False)
sketch5.addGeometry(Part.LineSegment(Vector(0.8, 2.3, 0), Vector(0.8, 7.5, 0)), False)
sketch5.addGeometry(Part.LineSegment(Vector(0.8, 7.5, 0), Vector(-0.8, 7.5, 0)), False)
sketch5.addConstraint(Sketcher.Constraint("Coincident", 0, 2, 1, 1))
sketch5.addConstraint(Sketcher.Constraint("Coincident", 1, 2, 2, 1))
sketch5.addConstraint(Sketcher.Constraint("Coincident", 2, 2, 3, 1))
sketch5.addConstraint(Sketcher.Constraint("Coincident", 3, 2, 0, 1))
sketch5.addConstraint(Sketcher.Constraint("Coincident", 4, 2, 5, 1))
sketch5.addConstraint(Sketcher.Constraint("Coincident", 5, 2, 6, 1))
sketch5.addConstraint(Sketcher.Constraint("Coincident", 6, 2, 7, 1))
sketch5.addConstraint(Sketcher.Constraint("Coincident", 7, 2, 4, 1))
sketch5.addConstraint(Sketcher.Constraint("Coincident", 8, 2, 9, 1))
sketch5.addConstraint(Sketcher.Constraint("Coincident", 9, 2, 10, 1))
sketch5.addConstraint(Sketcher.Constraint("Coincident", 10, 2, 11, 1))
sketch5.addConstraint(Sketcher.Constraint("Coincident", 11, 2, 8, 1))
sketch5.addConstraint(Sketcher.Constraint("Coincident", 12, 2, 13, 1))
sketch5.addConstraint(Sketcher.Constraint("Coincident", 13, 2, 14, 1))
sketch5.addConstraint(Sketcher.Constraint("Coincident", 14, 2, 15, 1))
sketch5.addConstraint(Sketcher.Constraint("Coincident", 15, 2, 12, 1))
sketch5.addConstraint(Sketcher.Constraint("Vertical", 0))
sketch5.addConstraint(Sketcher.Constraint("Horizontal", 1))
sketch5.addConstraint(Sketcher.Constraint("Vertical", 2))
sketch5.addConstraint(Sketcher.Constraint("Horizontal", 3))
sketch5.addConstraint(Sketcher.Constraint("Vertical", 4))
sketch5.addConstraint(Sketcher.Constraint("Horizontal", 5))
sketch5.addConstraint(Sketcher.Constraint("Vertical", 6))
sketch5.addConstraint(Sketcher.Constraint("Horizontal", 7))
sketch5.addConstraint(Sketcher.Constraint("Vertical", 8))
sketch5.addConstraint(Sketcher.Constraint("Horizontal", 9))
sketch5.addConstraint(Sketcher.Constraint("Vertical", 10))
sketch5.addConstraint(Sketcher.Constraint("Horizontal", 11))
sketch5.addConstraint(Sketcher.Constraint("Vertical", 12))
sketch5.addConstraint(Sketcher.Constraint("Horizontal", 13))
sketch5.addConstraint(Sketcher.Constraint("Vertical", 14))
sketch5.addConstraint(Sketcher.Constraint("Horizontal", 15))
sketch5.addConstraint(Sketcher.Constraint("Symmetric", 2, 2, 8, 2, -1, 1))
sketch5.addConstraint(Sketcher.Constraint("Symmetric", 0, 2, 10, 2, -1, 1))
sketch5.addConstraint(Sketcher.Constraint("Symmetric", 6, 2, 12, 2, -1, 1))
sketch5.addConstraint(Sketcher.Constraint("Symmetric", 4, 2, 14, 2, -1, 1))
sketch5.addConstraint(Sketcher.Constraint("Horizontal", 1, 2, 8, 2))
sketch5.addConstraint(Sketcher.Constraint("Vertical", 7, 2, 12, 2))
sketch5.addConstraint(Sketcher.Constraint("Equal", 15, 0))
sketch5.addConstraint(Sketcher.Constraint("Equal", 11, 4))
sketch5.addConstraint(Sketcher.Constraint("DistanceX", -1, 1, 1, 2, Q("7.5 mm")))
sketch5.addConstraint(Sketcher.Constraint("DistanceY", 4, 2, -1, 1, Q("7.5 mm")))
sketch5.addConstraint(Sketcher.Constraint("DistanceX", 5, 1, 5, 2, Q("1.651 mm")))
sketch5.addConstraint(Sketcher.Constraint("DistanceX", 1, 1, 1, 2, Q("5.152935 mm")))
pocket4 = body.newObject("PartDesign::Pocket", "Pocket003")
pocket4.Profile = sketch5
pocket4.Type = "ThroughAll"
doc.recompute()

fillet7 = body.newObject("PartDesign::Fillet", "Fillet006")
fillet7.Base = (pocket4, edges_at(pocket4, [
    (0.826, -2.935, 0),
    (-0.826, -2.935, 0),
    (0.826, -2.347, 0),
    (-0.826, -2.347, 0),
    (2.935, 0.826, 0),
    (2.935, -0.826, 0),
    (2.347, 0.826, 0),
    (2.347, -0.826, 0),
    (-2.935, -0.826, 0),
    (-2.935, 0.826, 0),
    (-2.347, -0.826, 0),
    (-2.347, 0.826, 0),
    (-0.826, 2.935, 0),
    (0.826, 2.935, 0),
    (-0.826, 2.347, 0),
    (0.826, 2.347, 0),
]))
fillet7.setExpression("Radius", "Params.fillet7_radius")

doc.recompute()
